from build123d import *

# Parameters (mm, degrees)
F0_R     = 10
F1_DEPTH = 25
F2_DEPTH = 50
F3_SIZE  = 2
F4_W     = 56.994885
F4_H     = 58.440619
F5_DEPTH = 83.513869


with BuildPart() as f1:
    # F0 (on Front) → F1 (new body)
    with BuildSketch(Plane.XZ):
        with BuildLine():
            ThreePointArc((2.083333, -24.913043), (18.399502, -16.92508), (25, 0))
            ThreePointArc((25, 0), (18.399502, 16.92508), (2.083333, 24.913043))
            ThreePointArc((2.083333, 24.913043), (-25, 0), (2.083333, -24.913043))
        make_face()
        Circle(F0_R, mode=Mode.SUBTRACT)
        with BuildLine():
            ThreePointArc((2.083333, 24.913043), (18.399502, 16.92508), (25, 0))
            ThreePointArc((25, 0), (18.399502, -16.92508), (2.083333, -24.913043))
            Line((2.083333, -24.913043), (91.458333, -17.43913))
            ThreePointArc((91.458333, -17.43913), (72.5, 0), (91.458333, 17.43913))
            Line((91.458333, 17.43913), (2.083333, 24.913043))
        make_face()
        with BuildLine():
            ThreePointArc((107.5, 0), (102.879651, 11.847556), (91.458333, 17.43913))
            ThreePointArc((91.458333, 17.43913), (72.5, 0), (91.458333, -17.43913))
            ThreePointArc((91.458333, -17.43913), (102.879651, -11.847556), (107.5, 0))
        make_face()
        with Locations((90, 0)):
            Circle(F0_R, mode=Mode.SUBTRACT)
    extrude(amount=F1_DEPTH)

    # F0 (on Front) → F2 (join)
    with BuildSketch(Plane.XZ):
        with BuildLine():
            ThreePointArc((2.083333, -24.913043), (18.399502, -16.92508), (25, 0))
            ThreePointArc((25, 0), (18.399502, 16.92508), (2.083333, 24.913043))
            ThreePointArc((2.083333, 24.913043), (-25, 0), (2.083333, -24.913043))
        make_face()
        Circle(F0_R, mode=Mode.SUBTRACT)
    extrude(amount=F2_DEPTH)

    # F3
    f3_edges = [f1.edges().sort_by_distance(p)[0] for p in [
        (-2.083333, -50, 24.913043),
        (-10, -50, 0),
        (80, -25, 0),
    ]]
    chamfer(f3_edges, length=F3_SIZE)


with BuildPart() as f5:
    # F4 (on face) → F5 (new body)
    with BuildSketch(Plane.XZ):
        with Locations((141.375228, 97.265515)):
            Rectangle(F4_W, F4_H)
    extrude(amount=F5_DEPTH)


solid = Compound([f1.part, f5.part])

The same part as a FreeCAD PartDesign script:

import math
import FreeCAD as App
import Part
import Sketcher

V = App.Vector


def edges_at(feature, points):
    """Names of the edges that pass closest to the given points."""
    edges = feature.Shape.Edges
    near = lambda p: min(range(len(edges)), key=lambda i: edges[i].distToShape(Part.Vertex(*p))[0])
    return sorted({f"Edge{near(p) + 1}" for p in points})

doc = App.newDocument("Part")
body = doc.addObject("PartDesign::Body", "Body")

sketch1 = body.newObject("Sketcher::SketchObject", "Sketch")
sketch1.AttachmentSupport = (doc.getObject("XZ_Plane"), [""])
sketch1.MapMode = "FlatFace"
sketch1.addGeometry([
    Part.ArcOfCircle(Part.Circle(V(0, 0, 0), V(0, 0, 1), 25), math.radians(85), math.radians(275)),
    Part.LineSegment(V(2, -25, 0), V(91, -17, 0)),
    Part.ArcOfCircle(Part.Circle(V(90, 0, 0), V(0, 0, 1), 18), math.radians(-85), math.radians(0)),
    Part.ArcOfCircle(Part.Circle(V(90, 0, 0), V(0, 0, 1), 18), math.radians(0), math.radians(85)),
    Part.LineSegment(V(91, 17, 0), V(2, 25, 0)),
    Part.Circle(V(0, 0, 0), V(0, 0, 1), 10),
    Part.Circle(V(90, 0, 0), V(0, 0, 1), 10),
], False)
sketch1.addConstraint([
    Sketcher.Constraint("Tangent", 0, 2, 1, 1),
    Sketcher.Constraint("Tangent", 1, 2, 2, 1),
    Sketcher.Constraint("Tangent", 2, 2, 3, 1),
    Sketcher.Constraint("Tangent", 3, 2, 4, 1),
    Sketcher.Constraint("Tangent", 4, 2, 0, 1),
    Sketcher.Constraint("Coincident", 0, 3, -1, 1),
    Sketcher.Constraint("Coincident", 5, 3, -1, 1),
    Sketcher.Constraint("Coincident", 6, 3, 2, 3),
    Sketcher.Constraint("Equal", 2, 3),
    Sketcher.Constraint("Equal", 5, 6),
    Sketcher.Constraint("PointOnObject", 2, 3, -1),
    Sketcher.Constraint("PointOnObject", 2, 2, -1),
    Sketcher.Constraint("Diameter", 5, 20.0),
    Sketcher.Constraint("Radius", 0, 25.0),
    Sketcher.Constraint("Radius", 2, 17.5),
    Sketcher.Constraint("DistanceX", -1, 1, 2, 3, 90.0),
])
pad1 = body.newObject("PartDesign::Pad", "Pad")
pad1.Profile = sketch1
pad1.Length = 25

sketch2 = body.newObject("Sketcher::SketchObject", "Sketch001")
sketch2.AttachmentSupport = (doc.getObject("XZ_Plane"), [""])
sketch2.MapMode = "FlatFace"
sketch2.addGeometry([
    Part.ArcOfCircle(Part.Circle(V(0, 0, 0), V(0, 0, 1), 25), math.radians(-85), math.radians(0)),
    Part.ArcOfCircle(Part.Circle(V(0, 0, 0), V(0, 0, 1), 25), math.radians(0), math.radians(85)),
    Part.ArcOfCircle(Part.Circle(V(0, 0, 0), V(0, 0, 1), 25), math.radians(85), math.radians(275)),
    Part.Circle(V(0, 0, 0), V(0, 0, 1), 10),
], False)
sketch2.addConstraint([
    Sketcher.Constraint("Tangent", 0, 2, 1, 1),
    Sketcher.Constraint("Tangent", 1, 2, 2, 1),
    Sketcher.Constraint("Tangent", 2, 2, 0, 1),
    Sketcher.Constraint("Coincident", 0, 3, -1, 1),
    Sketcher.Constraint("Coincident", 3, 3, -1, 1),
    Sketcher.Constraint("PointOnObject", 0, 2, -1),
    Sketcher.Constraint("Vertical", 1, 2, 2, 2),
    Sketcher.Constraint("Diameter", 3, 20.0),
    Sketcher.Constraint("Radius", 0, 24.999999),
    Sketcher.Constraint("DistanceX", -1, 1, 1, 2, 2.083333),
])
pad2 = body.newObject("PartDesign::Pad", "Pad001")
pad2.Profile = sketch2
pad2.Length = 50
doc.recompute()

chamfer = body.newObject("PartDesign::Chamfer", "Chamfer")
chamfer.Base = (pad2, edges_at(pad2, [(-25, -50, 0), (-10, -50, 0), (80, -25, 0)]))
chamfer.Size = 2
body2 = doc.addObject("PartDesign::Body", "Body001")

sketch3 = body2.newObject("Sketcher::SketchObject", "Sketch002")
sketch3.AttachmentSupport = (doc.getObject("XZ_Plane001"), [""])
sketch3.MapMode = "FlatFace"
sketch3.addGeometry([
    Part.LineSegment(V(113, 126, 0), V(113, 68, 0)),
    Part.LineSegment(V(113, 68, 0), V(170, 68, 0)),
    Part.LineSegment(V(170, 68, 0), V(170, 126, 0)),
    Part.LineSegment(V(170, 126, 0), V(113, 126, 0)),
], False)
sketch3.addConstraint([
    Sketcher.Constraint("Coincident", 0, 2, 1, 1),
    Sketcher.Constraint("Coincident", 1, 2, 2, 1),
    Sketcher.Constraint("Coincident", 2, 2, 3, 1),
    Sketcher.Constraint("Coincident", 3, 2, 0, 1),
    Sketcher.Constraint("Vertical", 0),
    Sketcher.Constraint("Horizontal", 1),
    Sketcher.Constraint("Vertical", 2),
    Sketcher.Constraint("Horizontal", 3),
    Sketcher.Constraint("DistanceY", 0, 2, 0, 1, 58.440619),
    Sketcher.Constraint("DistanceX", 1, 1, 1, 2, 56.994885),
    Sketcher.Constraint("DistanceX", -1, 1, 1, 2, 169.87267),
    Sketcher.Constraint("DistanceY", -1, 1, 0, 2, 68.045205),
])
pad3 = body2.newObject("PartDesign::Pad", "Pad002")
pad3.Profile = sketch3
pad3.Length = 83.513869

doc.recompute()
